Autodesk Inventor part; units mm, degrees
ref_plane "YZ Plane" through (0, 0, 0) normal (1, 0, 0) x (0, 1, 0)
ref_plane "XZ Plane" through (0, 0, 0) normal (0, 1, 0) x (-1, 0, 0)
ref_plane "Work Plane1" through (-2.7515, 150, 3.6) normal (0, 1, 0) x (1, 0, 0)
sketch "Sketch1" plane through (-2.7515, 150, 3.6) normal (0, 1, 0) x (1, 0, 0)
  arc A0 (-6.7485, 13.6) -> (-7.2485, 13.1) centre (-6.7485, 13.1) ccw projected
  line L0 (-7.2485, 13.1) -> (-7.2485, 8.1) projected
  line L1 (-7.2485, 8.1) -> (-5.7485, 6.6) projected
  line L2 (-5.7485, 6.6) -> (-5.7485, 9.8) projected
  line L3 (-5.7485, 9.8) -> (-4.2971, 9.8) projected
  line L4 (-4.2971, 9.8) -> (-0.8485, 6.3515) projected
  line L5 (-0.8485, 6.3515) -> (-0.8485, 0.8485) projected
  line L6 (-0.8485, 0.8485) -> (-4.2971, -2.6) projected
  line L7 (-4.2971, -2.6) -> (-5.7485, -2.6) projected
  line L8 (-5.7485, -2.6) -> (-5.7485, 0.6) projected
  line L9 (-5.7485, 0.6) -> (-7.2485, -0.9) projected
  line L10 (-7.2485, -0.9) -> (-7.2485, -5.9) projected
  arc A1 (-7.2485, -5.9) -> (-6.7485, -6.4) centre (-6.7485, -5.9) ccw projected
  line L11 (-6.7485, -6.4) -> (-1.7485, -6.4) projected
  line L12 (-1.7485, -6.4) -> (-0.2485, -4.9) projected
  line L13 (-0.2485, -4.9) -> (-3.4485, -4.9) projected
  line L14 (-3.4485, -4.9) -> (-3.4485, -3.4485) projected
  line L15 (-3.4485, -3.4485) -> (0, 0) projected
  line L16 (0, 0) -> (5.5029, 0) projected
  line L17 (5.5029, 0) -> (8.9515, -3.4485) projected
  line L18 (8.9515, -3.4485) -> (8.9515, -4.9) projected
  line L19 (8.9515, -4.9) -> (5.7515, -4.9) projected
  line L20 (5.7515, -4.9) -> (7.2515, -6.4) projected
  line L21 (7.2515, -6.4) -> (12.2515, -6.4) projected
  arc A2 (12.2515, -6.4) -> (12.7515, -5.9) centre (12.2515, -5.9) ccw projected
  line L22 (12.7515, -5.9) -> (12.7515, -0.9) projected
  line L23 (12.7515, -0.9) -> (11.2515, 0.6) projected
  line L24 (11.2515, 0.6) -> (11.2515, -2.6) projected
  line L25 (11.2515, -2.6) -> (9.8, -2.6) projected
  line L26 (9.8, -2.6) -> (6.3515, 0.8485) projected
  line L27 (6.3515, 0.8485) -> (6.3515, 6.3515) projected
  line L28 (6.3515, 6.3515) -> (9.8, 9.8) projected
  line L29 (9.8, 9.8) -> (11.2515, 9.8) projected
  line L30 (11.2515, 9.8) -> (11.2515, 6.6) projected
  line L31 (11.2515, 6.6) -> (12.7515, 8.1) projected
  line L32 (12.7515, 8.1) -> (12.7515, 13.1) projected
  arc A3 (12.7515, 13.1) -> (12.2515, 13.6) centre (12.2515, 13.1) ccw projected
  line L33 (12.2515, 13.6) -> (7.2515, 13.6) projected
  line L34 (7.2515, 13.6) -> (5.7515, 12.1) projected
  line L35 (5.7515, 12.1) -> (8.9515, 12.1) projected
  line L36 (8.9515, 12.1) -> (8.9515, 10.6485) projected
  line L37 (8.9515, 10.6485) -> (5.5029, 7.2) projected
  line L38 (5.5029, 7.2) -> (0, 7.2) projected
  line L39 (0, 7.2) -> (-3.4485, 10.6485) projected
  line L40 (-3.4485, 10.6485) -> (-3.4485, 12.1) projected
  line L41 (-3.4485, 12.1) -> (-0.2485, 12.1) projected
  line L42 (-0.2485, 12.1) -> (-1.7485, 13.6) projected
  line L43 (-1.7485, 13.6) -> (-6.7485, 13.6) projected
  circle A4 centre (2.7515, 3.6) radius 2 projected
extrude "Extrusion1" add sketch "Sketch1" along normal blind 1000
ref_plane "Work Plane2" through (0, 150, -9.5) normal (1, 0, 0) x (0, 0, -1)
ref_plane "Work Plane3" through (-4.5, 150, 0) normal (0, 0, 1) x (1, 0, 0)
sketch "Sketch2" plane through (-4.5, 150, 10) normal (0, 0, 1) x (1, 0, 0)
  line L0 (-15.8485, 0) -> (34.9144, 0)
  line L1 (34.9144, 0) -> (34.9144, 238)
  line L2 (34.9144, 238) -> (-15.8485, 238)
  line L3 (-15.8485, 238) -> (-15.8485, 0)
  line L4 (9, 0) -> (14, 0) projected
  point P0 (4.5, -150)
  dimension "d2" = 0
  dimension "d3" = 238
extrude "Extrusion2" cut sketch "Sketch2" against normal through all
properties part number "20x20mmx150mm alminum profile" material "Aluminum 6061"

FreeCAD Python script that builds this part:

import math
import FreeCAD as App
import Part
import Sketcher

V = App.Vector
Q = App.Units.Quantity


def add_polygon(sketch, points):
    """Adds a closed chain of lines whose ends are joined by coincident constraints."""
    first, n = sketch.GeometryCount, len(points)
    for a, b in zip(points, points[1:] + points[:1]):
        sketch.addGeometry(Part.LineSegment(App.Vector(*a, 0), App.Vector(*b, 0)), False)
    for i in range(n):
        sketch.addConstraint(Sketcher.Constraint("Coincident", first + i, 2, first + (i + 1) % n, 1))

doc = App.newDocument("Part")
body = doc.addObject("PartDesign::Body", "Body")

sketch1 = doc.addObject("Sketcher::SketchObject", "Sketch")
body.addObject(sketch1)
sketch1.AttachmentSupport = (doc.XZ_Plane, [""])
sketch1.MapMode = "FlatFace"
sketch1.AttachmentOffset = App.Placement(V(0, 0, -150), App.Rotation())
sketch1.addGeometry(Part.LineSegment(V(-4.5, -10, 0), V(-9.5, -10, 0)), False)
sketch1.addGeometry(Part.ArcOfCircle(Part.Circle(V(-9.5, -9.5, 0), V(0, 0, 1), 0.5), math.radians(180), math.radians(270)), False)
sketch1.addGeometry(Part.LineSegment(V(-10, -9.5, 0), V(-10, -4.5, 0)), False)
sketch1.addGeometry(Part.LineSegment(V(-10, -4.5, 0), V(-8.5, -3, 0)), False)
sketch1.addGeometry(Part.LineSegment(V(-8.5, -3, 0), V(-8.5, -6.2, 0)), False)
sketch1.addGeometry(Part.LineSegment(V(-8.5, -6.2, 0), V(-7.0486, -6.2, 0)), False)
sketch1.addGeometry(Part.LineSegment(V(-7.0486, -6.2, 0), V(-3.6, -2.7515, 0)), False)
sketch1.addGeometry(Part.LineSegment(V(-3.6, -2.7515, 0), V(-3.6, 2.7515, 0)), False)
sketch1.addGeometry(Part.LineSegment(V(-3.6, 2.7515, 0), V(-7.0486, 6.2, 0)), False)
sketch1.addGeometry(Part.LineSegment(V(-7.0486, 6.2, 0), V(-8.5, 6.2, 0)), False)
sketch1.addGeometry(Part.LineSegment(V(-8.5, 6.2, 0), V(-8.5, 3, 0)), False)
sketch1.addGeometry(Part.LineSegment(V(-8.5, 3, 0), V(-10, 4.5, 0)), False)
sketch1.addGeometry(Part.LineSegment(V(-10, 4.5, 0), V(-10, 9.5, 0)), False)
sketch1.addGeometry(Part.ArcOfCircle(Part.Circle(V(-9.5, 9.5, 0), V(0, 0, 1), 0.5), math.radians(90), math.radians(180)), False)
sketch1.addGeometry(Part.LineSegment(V(-9.5, 10, 0), V(-4.5, 10, 0)), False)
sketch1.addGeometry(Part.LineSegment(V(-4.5, 10, 0), V(-3, 8.5, 0)), False)
sketch1.addGeometry(Part.LineSegment(V(-3, 8.5, 0), V(-6.2, 8.5, 0)), False)
sketch1.addGeometry(Part.LineSegment(V(-6.2, 8.5, 0), V(-6.2, 7.0485, 0)), False)
sketch1.addGeometry(Part.LineSegment(V(-6.2, 7.0485, 0), V(-2.7515, 3.6, 0)), False)
sketch1.addGeometry(Part.LineSegment(V(-2.7515, 3.6, 0), V(2.7514, 3.6, 0)), False)
sketch1.addGeometry(Part.LineSegment(V(2.7514, 3.6, 0), V(6.2, 7.0485, 0)), False)
sketch1.addGeometry(Part.LineSegment(V(6.2, 7.0485, 0), V(6.2, 8.5, 0)), False)
sketch1.addGeometry(Part.LineSegment(V(6.2, 8.5, 0), V(3, 8.5, 0)), False)
sketch1.addGeometry(Part.LineSegment(V(3, 8.5, 0), V(4.5, 10, 0)), False)
sketch1.addGeometry(Part.LineSegment(V(4.5, 10, 0), V(9.5, 10, 0)), False)
sketch1.addGeometry(Part.ArcOfCircle(Part.Circle(V(9.5, 9.5, 0), V(0, 0, 1), 0.5), math.radians(0), math.radians(90)), False)
sketch1.addGeometry(Part.LineSegment(V(10, 9.5, 0), V(10, 4.5, 0)), False)
sketch1.addGeometry(Part.LineSegment(V(10, 4.5, 0), V(8.5, 3, 0)), False)
sketch1.addGeometry(Part.LineSegment(V(8.5, 3, 0), V(8.5, 6.2, 0)), False)
sketch1.addGeometry(Part.LineSegment(V(8.5, 6.2, 0), V(7.0485, 6.2, 0)), False)
sketch1.addGeometry(Part.LineSegment(V(7.0485, 6.2, 0), V(3.6, 2.7515, 0)), False)
sketch1.addGeometry(Part.LineSegment(V(3.6, 2.7515, 0), V(3.6, -2.7515, 0)), False)
sketch1.addGeometry(Part.LineSegment(V(3.6, -2.7515, 0), V(7.0485, -6.2, 0)), False)
sketch1.addGeometry(Part.LineSegment(V(7.0485, -6.2, 0), V(8.5, -6.2, 0)), False)
sketch1.addGeometry(Part.LineSegment(V(8.5, -6.2, 0), V(8.5, -3, 0)), False)
sketch1.addGeometry(Part.LineSegment(V(8.5, -3, 0), V(10, -4.5, 0)), False)
sketch1.addGeometry(Part.LineSegment(V(10, -4.5, 0), V(10, -9.5, 0)), False)
sketch1.addGeometry(Part.ArcOfCircle(Part.Circle(V(9.5, -9.5, 0), V(0, 0, 1), 0.5), math.radians(-90), math.radians(0)), False)
sketch1.addGeometry(Part.LineSegment(V(9.5, -10, 0), V(4.5, -10, 0)), False)
sketch1.addGeometry(Part.LineSegment(V(4.5, -10, 0), V(3, -8.5, 0)), False)
sketch1.addGeometry(Part.LineSegment(V(3, -8.5, 0), V(6.2, -8.5, 0)), False)
sketch1.addGeometry(Part.LineSegment(V(6.2, -8.5, 0), V(6.2, -7.0485, 0)), False)
sketch1.addGeometry(Part.LineSegment(V(6.2, -7.0485, 0), V(2.7514, -3.6, 0)), False)
sketch1.addGeometry(Part.LineSegment(V(2.7514, -3.6, 0), V(-2.7515, -3.6, 0)), False)
sketch1.addGeometry(Part.LineSegment(V(-2.7515, -3.6, 0), V(-6.2, -7.0485, 0)), False)
sketch1.addGeometry(Part.LineSegment(V(-6.2, -7.0485, 0), V(-6.2, -8.5, 0)), False)
sketch1.addGeometry(Part.LineSegment(V(-6.2, -8.5, 0), V(-3, -8.5, 0)), False)
sketch1.addGeometry(Part.LineSegment(V(-3, -8.5, 0), V(-4.5, -10, 0)), False)
sketch1.addGeometry(Part.Circle(V(0, 0, 0), V(0, 0, 1), 2), False)
sketch1.addConstraint(Sketcher.Constraint("Tangent", 0, 2, 1, 2))
sketch1.addConstraint(Sketcher.Constraint("Tangent", 1, 1, 2, 1))
sketch1.addConstraint(Sketcher.Constraint("Coincident", 2, 2, 3, 1))
sketch1.addConstraint(Sketcher.Constraint("Coincident", 3, 2, 4, 1))
sketch1.addConstraint(Sketcher.Constraint("Coincident", 4, 2, 5, 1))
sketch1.addConstraint(Sketcher.Constraint("Coincident", 5, 2, 6, 1))
sketch1.addConstraint(Sketcher.Constraint("Coincident", 6, 2, 7, 1))
sketch1.addConstraint(Sketcher.Constraint("Coincident", 7, 2, 8, 1))
sketch1.addConstraint(Sketcher.Constraint("Coincident", 8, 2, 9, 1))
sketch1.addConstraint(Sketcher.Constraint("Coincident", 9, 2, 10, 1))
sketch1.addConstraint(Sketcher.Constraint("Coincident", 10, 2, 11, 1))
sketch1.addConstraint(Sketcher.Constraint("Coincident", 11, 2, 12, 1))
sketch1.addConstraint(Sketcher.Constraint("Tangent", 12, 2, 13, 2))
sketch1.addConstraint(Sketcher.Constraint("Tangent", 13, 1, 14, 1))
sketch1.addConstraint(Sketcher.Constraint("Coincident", 14, 2, 15, 1))
sketch1.addConstraint(Sketcher.Constraint("Coincident", 15, 2, 16, 1))
sketch1.addConstraint(Sketcher.Constraint("Coincident", 16, 2, 17, 1))
sketch1.addConstraint(Sketcher.Constraint("Coincident", 17, 2, 18, 1))
sketch1.addConstraint(Sketcher.Constraint("Coincident", 18, 2, 19, 1))
sketch1.addConstraint(Sketcher.Constraint("Coincident", 19, 2, 20, 1))
sketch1.addConstraint(Sketcher.Constraint("Coincident", 20, 2, 21, 1))
sketch1.addConstraint(Sketcher.Constraint("Coincident", 21, 2, 22, 1))
sketch1.addConstraint(Sketcher.Constraint("Coincident", 22, 2, 23, 1))
sketch1.addConstraint(Sketcher.Constraint("Coincident", 23, 2, 24, 1))
sketch1.addConstraint(Sketcher.Constraint("Tangent", 24, 2, 25, 2))
sketch1.addConstraint(Sketcher.Constraint("Tangent", 25, 1, 26, 1))
sketch1.addConstraint(Sketcher.Constraint("Coincident", 26, 2, 27, 1))
sketch1.addConstraint(Sketcher.Constraint("Coincident", 27, 2, 28, 1))
sketch1.addConstraint(Sketcher.Constraint("Coincident", 28, 2, 29, 1))
sketch1.addConstraint(Sketcher.Constraint("Coincident", 29, 2, 30, 1))
sketch1.addConstraint(Sketcher.Constraint("Coincident", 30, 2, 31, 1))
sketch1.addConstraint(Sketcher.Constraint("Coincident", 31, 2, 32, 1))
sketch1.addConstraint(Sketcher.Constraint("Coincident", 32, 2, 33, 1))
sketch1.addConstraint(Sketcher.Constraint("Coincident", 33, 2, 34, 1))
sketch1.addConstraint(Sketcher.Constraint("Coincident", 34, 2, 35, 1))
sketch1.addConstraint(Sketcher.Constraint("Coincident", 35, 2, 36, 1))
sketch1.addConstraint(Sketcher.Constraint("Tangent", 36, 2, 37, 2))
sketch1.addConstraint(Sketcher.Constraint("Tangent", 37, 1, 38, 1))
sketch1.addConstraint(Sketcher.Constraint("Coincident", 38, 2, 39, 1))
sketch1.addConstraint(Sketcher.Constraint("Coincident", 39, 2, 40, 1))
sketch1.addConstraint(Sketcher.Constraint("Coincident", 40, 2, 41, 1))
sketch1.addConstraint(Sketcher.Constraint("Coincident", 41, 2, 42, 1))
sketch1.addConstraint(Sketcher.Constraint("Coincident", 42, 2, 43, 1))
sketch1.addConstraint(Sketcher.Constraint("Coincident", 43, 2, 44, 1))
sketch1.addConstraint(Sketcher.Constraint("Coincident", 44, 2, 45, 1))
sketch1.addConstraint(Sketcher.Constraint("Coincident", 45, 2, 46, 1))
sketch1.addConstraint(Sketcher.Constraint("Coincident", 46, 2, 47, 1))
sketch1.addConstraint(Sketcher.Constraint("Coincident", 47, 2, 0, 1))
sketch1.addConstraint(Sketcher.Constraint("Horizontal", 0))
sketch1.addConstraint(Sketcher.Constraint("Vertical", 2))
sketch1.addConstraint(Sketcher.Constraint("Vertical", 4))
sketch1.addConstraint(Sketcher.Constraint("Horizontal", 5))
sketch1.addConstraint(Sketcher.Constraint("Vertical", 7))
sketch1.addConstraint(Sketcher.Constraint("Horizontal", 9))
sketch1.addConstraint(Sketcher.Constraint("Vertical", 10))
sketch1.addConstraint(Sketcher.Constraint("Vertical", 12))
sketch1.addConstraint(Sketcher.Constraint("Horizontal", 14))
sketch1.addConstraint(Sketcher.Constraint("Horizontal", 16))
sketch1.addConstraint(Sketcher.Constraint("Vertical", 17))
sketch1.addConstraint(Sketcher.Constraint("Horizontal", 19))
sketch1.addConstraint(Sketcher.Constraint("Vertical", 21))
sketch1.addConstraint(Sketcher.Constraint("Horizontal", 22))
sketch1.addConstraint(Sketcher.Constraint("Horizontal", 24))
sketch1.addConstraint(Sketcher.Constraint("Vertical", 26))
sketch1.addConstraint(Sketcher.Constraint("Vertical", 28))
sketch1.addConstraint(Sketcher.Constraint("Horizontal", 29))
sketch1.addConstraint(Sketcher.Constraint("Vertical", 31))
sketch1.addConstraint(Sketcher.Constraint("Horizontal", 33))
sketch1.addConstraint(Sketcher.Constraint("Vertical", 34))
sketch1.addConstraint(Sketcher.Constraint("Vertical", 36))
sketch1.addConstraint(Sketcher.Constraint("Horizontal", 38))
sketch1.addConstraint(Sketcher.Constraint("Horizontal", 40))
sketch1.addConstraint(Sketcher.Constraint("Vertical", 41))
sketch1.addConstraint(Sketcher.Constraint("Horizontal", 43))
sketch1.addConstraint(Sketcher.Constraint("Vertical", 45))
sketch1.addConstraint(Sketcher.Constraint("Horizontal", 46))
sketch1.addConstraint(Sketcher.Constraint("Coincident", 48, 3, -1, 1))
sketch1.addConstraint(Sketcher.Constraint("Equal", 1, 13))
sketch1.addConstraint(Sketcher.Constraint("Equal", 13, 25))
sketch1.addConstraint(Sketcher.Constraint("Equal", 25, 37))
sketch1.addConstraint(Sketcher.Constraint("Symmetric", 1, 3, 25, 3, -1, 1))
sketch1.addConstraint(Sketcher.Constraint("Symmetric", 13, 3, 37, 3, -1, 1))
sketch1.addConstraint(Sketcher.Constraint("Symmetric", 3, 2, 27, 2, -1, 1))
sketch1.addConstraint(Sketcher.Constraint("Symmetric", 5, 2, 29, 2, -1, 1))
sketch1.addConstraint(Sketcher.Constraint("Symmetric", 6, 2, 30, 2, -1, 1))
sketch1.addConstraint(Sketcher.Constraint("Symmetric", 8, 2, 32, 2, -1, 1))
sketch1.addConstraint(Sketcher.Constraint("Symmetric", 10, 2, 34, 2, -1, 1))
sketch1.addConstraint(Sketcher.Constraint("Symmetric", 15, 2, 39, 2, -1, 1))
sketch1.addConstraint(Sketcher.Constraint("Symmetric", 17, 2, 41, 2, -1, 1))
sketch1.addConstraint(Sketcher.Constraint("Symmetric", 18, 2, 42, 2, -1, 1))
sketch1.addConstraint(Sketcher.Constraint("Symmetric", 20, 2, 44, 2, -1, 1))
sketch1.addConstraint(Sketcher.Constraint("Symmetric", 22, 2, 46, 2, -1, 1))
sketch1.addConstraint(Sketcher.Constraint("Symmetric", 13, 3, 25, 3, -2))
sketch1.addConstraint(Sketcher.Constraint("Symmetric", 17, 2, 20, 2, -2))
sketch1.addConstraint(Sketcher.Constraint("Symmetric", 15, 2, 22, 2, -2))
sketch1.addConstraint(Sketcher.Constraint("Symmetric", 10, 2, 27, 2, -2))
sketch1.addConstraint(Sketcher.Constraint("Symmetric", 8, 2, 29, 2, -2))
sketch1.addConstraint(Sketcher.Constraint("Parallel", 3, 6))
sketch1.addConstraint(Sketcher.Constraint("Perpendicular", 6, 8))
sketch1.addConstraint(Sketcher.Constraint("Parallel", 8, 11))
sketch1.addConstraint(Sketcher.Constraint("Parallel", 11, 15))
sketch1.addConstraint(Sketcher.Constraint("Parallel", 15, 18))
sketch1.addConstraint(Sketcher.Constraint("Perpendicular", 18, 20))
sketch1.addConstraint(Sketcher.Constraint("Parallel", 20, 23))
sketch1.addConstraint(Sketcher.Constraint("Parallel", 23, 27))
sketch1.addConstraint(Sketcher.Constraint("Perpendicular", 30, 32))
sketch1.addConstraint(Sketcher.Constraint("Parallel", 32, 35))
sketch1.addConstraint(Sketcher.Constraint("Parallel", 35, 39))
sketch1.addConstraint(Sketcher.Constraint("Perpendicular", 42, 44))
sketch1.addConstraint(Sketcher.Constraint("Parallel", 44, 47))
sketch1.addConstraint(Sketcher.Constraint("Horizontal", 11, 2, 26, 2))
sketch1.addConstraint(Sketcher.Constraint("Equal", 38, 2))
sketch1.addConstraint(Sketcher.Constraint("Equal", 46, 4))
sketch1.addConstraint(Sketcher.Constraint("Equal", 43, 7))
sketch1.addConstraint(Sketcher.Constraint("Equal", 33, 17))
sketch1.addConstraint(Sketcher.Constraint("Equal", 11, 15))
sketch1.addConstraint(Sketcher.Constraint("Equal", 8, 18))
sketch1.addConstraint(Sketcher.Constraint("Diameter", 48, Q("4 mm")))
sketch1.addConstraint(Sketcher.Constraint("Radius", 1, Q("0.5 mm")))
sketch1.addConstraint(Sketcher.Constraint("DistanceX", 0, 2, 0, 1, Q("5 mm")))
sketch1.addConstraint(Sketcher.Constraint("DistanceX", 16, 2, 16, 1, Q("3.2 mm")))
sketch1.addConstraint(Sketcher.Constraint("DistanceY", 0, 2, -1, 1, Q("10 mm")))
sketch1.addConstraint(Sketcher.Constraint("DistanceY", 3, 2, -1, 1, Q("3 mm")))
sketch1.addConstraint(Sketcher.Constraint("DistanceX", 6, 2, -1, 1, Q("3.6 mm")))
sketch1.addConstraint(Sketcher.Constraint("DistanceX", 19, 1, 19, 2, Q("5.503 mm")))
pad1 = doc.addObject("PartDesign::Pad", "Pad")
body.addObject(pad1)
pad1.Profile = sketch1
pad1.Length = 1000
pad1.Reversed = True

sketch2 = doc.addObject("Sketcher::SketchObject", "Sketch001")
body.addObject(sketch2)
sketch2.AttachmentSupport = (doc.XY_Plane, [""])
sketch2.MapMode = "FlatFace"
sketch2.AttachmentOffset = App.Placement(V(0, 0, 10), App.Rotation())
add_polygon(sketch2, [(-20.3485, 388), (-20.3485, 150), (30.4144, 150), (30.4144, 388)])
sketch2.addConstraint(Sketcher.Constraint("Vertical", 0))
sketch2.addConstraint(Sketcher.Constraint("Horizontal", 1))
sketch2.addConstraint(Sketcher.Constraint("Vertical", 2))
sketch2.addConstraint(Sketcher.Constraint("Horizontal", 3))
sketch2.addConstraint(Sketcher.Constraint("DistanceY", 0, 2, 0, 1, Q("238 mm")))
sketch2.addConstraint(Sketcher.Constraint("DistanceY", -1, 1, 0, 2, Q("150 mm")))
sketch2.addConstraint(Sketcher.Constraint("DistanceX", 1, 1, 1, 2, Q("50.763 mm")))
sketch2.addConstraint(Sketcher.Constraint("DistanceX", 0, 2, -1, 1, Q("20.3485 mm")))
pocket1 = doc.addObject("PartDesign::Pocket", "Pocket")
body.addObject(pocket1)
pocket1.Profile = sketch2
pocket1.Type = "ThroughAll"

doc.recompute()
